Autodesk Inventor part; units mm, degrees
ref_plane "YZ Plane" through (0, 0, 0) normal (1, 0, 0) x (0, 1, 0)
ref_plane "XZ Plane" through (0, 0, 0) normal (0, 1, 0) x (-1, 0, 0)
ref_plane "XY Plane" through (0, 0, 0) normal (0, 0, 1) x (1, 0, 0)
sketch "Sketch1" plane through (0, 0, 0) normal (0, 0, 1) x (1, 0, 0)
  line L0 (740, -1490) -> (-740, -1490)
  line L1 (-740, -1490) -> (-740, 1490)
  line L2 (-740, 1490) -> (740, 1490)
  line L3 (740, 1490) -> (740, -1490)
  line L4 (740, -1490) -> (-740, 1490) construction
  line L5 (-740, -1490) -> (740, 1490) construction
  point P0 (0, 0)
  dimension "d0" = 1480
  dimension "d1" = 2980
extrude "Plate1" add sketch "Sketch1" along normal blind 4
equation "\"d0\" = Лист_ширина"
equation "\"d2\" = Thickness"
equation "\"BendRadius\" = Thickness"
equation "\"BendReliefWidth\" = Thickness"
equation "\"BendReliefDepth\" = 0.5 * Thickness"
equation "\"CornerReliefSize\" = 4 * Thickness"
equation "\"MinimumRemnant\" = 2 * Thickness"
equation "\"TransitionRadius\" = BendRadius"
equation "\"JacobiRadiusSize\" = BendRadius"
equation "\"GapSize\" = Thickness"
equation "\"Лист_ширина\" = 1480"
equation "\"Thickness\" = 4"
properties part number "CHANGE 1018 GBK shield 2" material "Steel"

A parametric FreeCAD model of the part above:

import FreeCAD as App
import Part
import Sketcher
from FreeCAD import Vector

doc = App.newDocument("Part")
body = doc.addObject("PartDesign::Body", "Body")

sketch1 = doc.addObject("Sketcher::SketchObject", "Sketch")
body.addObject(sketch1)
sketch1.AttachmentSupport = (doc.XY_Plane, [""])
sketch1.MapMode = "FlatFace"
sketch1.addGeometry([
    Part.LineSegment(Vector(-740, -1490, 0), Vector(740, -1490, 0)),
    Part.LineSegment(Vector(740, -1490, 0), Vector(740, 1490, 0)),
    Part.LineSegment(Vector(740, 1490, 0), Vector(-740, 1490, 0)),
    Part.LineSegment(Vector(-740, 1490, 0), Vector(-740, -1490, 0)),
], False)
sketch1.addConstraint([
    Sketcher.Constraint("Coincident", 0, 2, 1, 1),
    Sketcher.Constraint("Coincident", 1, 2, 2, 1),
    Sketcher.Constraint("Coincident", 2, 2, 3, 1),
    Sketcher.Constraint("Coincident", 3, 2, 0, 1),
    Sketcher.Constraint("Horizontal", 0),
    Sketcher.Constraint("Vertical", 1),
    Sketcher.Constraint("Horizontal", 2),
    Sketcher.Constraint("Vertical", 3),
    Sketcher.Constraint("Symmetric", 0, 2, 2, 2, -1, 1),
    Sketcher.Constraint("DistanceX", 0, 1, 0, 2, 1480.0),
    Sketcher.Constraint("DistanceY", 1, 1, 1, 2, 2980.0),
])
pad1 = doc.addObject("PartDesign::Pad", "Pad")
body.addObject(pad1)
pad1.Profile = sketch1
pad1.Length = 4

doc.recompute()
